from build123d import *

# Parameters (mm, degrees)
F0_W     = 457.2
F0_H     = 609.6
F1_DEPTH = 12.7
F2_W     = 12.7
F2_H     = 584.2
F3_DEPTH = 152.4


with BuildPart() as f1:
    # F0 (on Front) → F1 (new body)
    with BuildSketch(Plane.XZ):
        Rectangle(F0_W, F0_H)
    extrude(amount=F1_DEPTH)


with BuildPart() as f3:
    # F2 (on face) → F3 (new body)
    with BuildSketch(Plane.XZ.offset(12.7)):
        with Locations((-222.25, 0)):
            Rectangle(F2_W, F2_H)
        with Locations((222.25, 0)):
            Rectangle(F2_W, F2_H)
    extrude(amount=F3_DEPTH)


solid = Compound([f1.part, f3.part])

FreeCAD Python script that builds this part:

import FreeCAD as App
import Part
import Sketcher
Q = App.Units.Quantity

doc = App.newDocument("Part")
body = doc.addObject("PartDesign::Body", "Body")

sketch1 = doc.addObject("Sketcher::SketchObject", "Sketch")
body.addObject(sketch1)
sketch1.AttachmentSupport = (doc.XZ_Plane, [""])
sketch1.MapMode = "FlatFace"
sketch1.addGeometry([
    Part.LineSegment(App.Vector(-229, 305, 0), App.Vector(-229, -305, 0)),
    Part.LineSegment(App.Vector(-229, -305, 0), App.Vector(229, -305, 0)),
    Part.LineSegment(App.Vector(229, -305, 0), App.Vector(229, 305, 0)),
    Part.LineSegment(App.Vector(229, 305, 0), App.Vector(-229, 305, 0)),
], False)
sketch1.addConstraint([
    Sketcher.Constraint("Coincident", 0, 2, 1, 1),
    Sketcher.Constraint("Coincident", 1, 2, 2, 1),
    Sketcher.Constraint("Coincident", 2, 2, 3, 1),
    Sketcher.Constraint("Coincident", 3, 2, 0, 1),
    Sketcher.Constraint("Vertical", 0),
    Sketcher.Constraint("Horizontal", 1),
    Sketcher.Constraint("Vertical", 2),
    Sketcher.Constraint("Horizontal", 3),
    Sketcher.Constraint("Symmetric", 0, 2, 2, 2, -1, 1),
    Sketcher.Constraint("DistanceX", 1, 1, 1, 2, Q("18 in")),
    Sketcher.Constraint("DistanceY", 0, 2, 0, 1, Q("24 in")),
])
pad1 = doc.addObject("PartDesign::Pad", "Pad")
body.addObject(pad1)
pad1.Profile = sketch1
pad1.Length = Q("0.5 in")
body2 = doc.addObject("PartDesign::Body", "Body001")
body2.AllowCompound = True

sketch2 = doc.addObject("Sketcher::SketchObject", "Sketch001")
body2.addObject(sketch2)
sketch2.AttachmentSupport = (doc.getObject("XZ_Plane001"), [""])
sketch2.MapMode = "FlatFace"
sketch2.AttachmentOffset = App.Placement(App.Vector(0, 0, 0.5 * 25.4), App.Rotation())
sketch2.addGeometry([
    Part.LineSegment(App.Vector(-229, 292, 0), App.Vector(-229, -292, 0)),
    Part.LineSegment(App.Vector(-229, -292, 0), App.Vector(-216, -292, 0)),
    Part.LineSegment(App.Vector(-216, -292, 0), App.Vector(-216, 292, 0)),
    Part.LineSegment(App.Vector(-216, 292, 0), App.Vector(-229, 292, 0)),
    Part.LineSegment(App.Vector(216, 292, 0), App.Vector(216, -292, 0)),
    Part.LineSegment(App.Vector(216, -292, 0), App.Vector(229, -292, 0)),
    Part.LineSegment(App.Vector(229, -292, 0), App.Vector(229, 292, 0)),
    Part.LineSegment(App.Vector(229, 292, 0), App.Vector(216, 292, 0)),
], False)
sketch2.addConstraint([
    Sketcher.Constraint("Coincident", 0, 2, 1, 1),
    Sketcher.Constraint("Coincident", 1, 2, 2, 1),
    Sketcher.Constraint("Coincident", 2, 2, 3, 1),
    Sketcher.Constraint("Coincident", 3, 2, 0, 1),
    Sketcher.Constraint("Coincident", 4, 2, 5, 1),
    Sketcher.Constraint("Coincident", 5, 2, 6, 1),
    Sketcher.Constraint("Coincident", 6, 2, 7, 1),
    Sketcher.Constraint("Coincident", 7, 2, 4, 1),
    Sketcher.Constraint("Vertical", 0),
    Sketcher.Constraint("Horizontal", 1),
    Sketcher.Constraint("Vertical", 2),
    Sketcher.Constraint("Horizontal", 3),
    Sketcher.Constraint("Vertical", 4),
    Sketcher.Constraint("Horizontal", 5),
    Sketcher.Constraint("Vertical", 6),
    Sketcher.Constraint("Horizontal", 7),
    Sketcher.Constraint("Symmetric", 2, 2, 4, 2, -1, 1),
    Sketcher.Constraint("Symmetric", 0, 2, 6, 2, -1, 1),
    Sketcher.Constraint("Horizontal", 1, 2, 4, 2),
    Sketcher.Constraint("DistanceY", 0, 2, 0, 1, Q("23 in")),
    Sketcher.Constraint("DistanceX", 1, 1, 1, 2, Q("0.5 in")),
    Sketcher.Constraint("DistanceX", 0, 2, -1, 1, Q("9 in")),
])
pad2 = doc.addObject("PartDesign::Pad", "Pad001")
body2.addObject(pad2)
pad2.Profile = sketch2
pad2.Length = Q("6 in")

doc.recompute()
